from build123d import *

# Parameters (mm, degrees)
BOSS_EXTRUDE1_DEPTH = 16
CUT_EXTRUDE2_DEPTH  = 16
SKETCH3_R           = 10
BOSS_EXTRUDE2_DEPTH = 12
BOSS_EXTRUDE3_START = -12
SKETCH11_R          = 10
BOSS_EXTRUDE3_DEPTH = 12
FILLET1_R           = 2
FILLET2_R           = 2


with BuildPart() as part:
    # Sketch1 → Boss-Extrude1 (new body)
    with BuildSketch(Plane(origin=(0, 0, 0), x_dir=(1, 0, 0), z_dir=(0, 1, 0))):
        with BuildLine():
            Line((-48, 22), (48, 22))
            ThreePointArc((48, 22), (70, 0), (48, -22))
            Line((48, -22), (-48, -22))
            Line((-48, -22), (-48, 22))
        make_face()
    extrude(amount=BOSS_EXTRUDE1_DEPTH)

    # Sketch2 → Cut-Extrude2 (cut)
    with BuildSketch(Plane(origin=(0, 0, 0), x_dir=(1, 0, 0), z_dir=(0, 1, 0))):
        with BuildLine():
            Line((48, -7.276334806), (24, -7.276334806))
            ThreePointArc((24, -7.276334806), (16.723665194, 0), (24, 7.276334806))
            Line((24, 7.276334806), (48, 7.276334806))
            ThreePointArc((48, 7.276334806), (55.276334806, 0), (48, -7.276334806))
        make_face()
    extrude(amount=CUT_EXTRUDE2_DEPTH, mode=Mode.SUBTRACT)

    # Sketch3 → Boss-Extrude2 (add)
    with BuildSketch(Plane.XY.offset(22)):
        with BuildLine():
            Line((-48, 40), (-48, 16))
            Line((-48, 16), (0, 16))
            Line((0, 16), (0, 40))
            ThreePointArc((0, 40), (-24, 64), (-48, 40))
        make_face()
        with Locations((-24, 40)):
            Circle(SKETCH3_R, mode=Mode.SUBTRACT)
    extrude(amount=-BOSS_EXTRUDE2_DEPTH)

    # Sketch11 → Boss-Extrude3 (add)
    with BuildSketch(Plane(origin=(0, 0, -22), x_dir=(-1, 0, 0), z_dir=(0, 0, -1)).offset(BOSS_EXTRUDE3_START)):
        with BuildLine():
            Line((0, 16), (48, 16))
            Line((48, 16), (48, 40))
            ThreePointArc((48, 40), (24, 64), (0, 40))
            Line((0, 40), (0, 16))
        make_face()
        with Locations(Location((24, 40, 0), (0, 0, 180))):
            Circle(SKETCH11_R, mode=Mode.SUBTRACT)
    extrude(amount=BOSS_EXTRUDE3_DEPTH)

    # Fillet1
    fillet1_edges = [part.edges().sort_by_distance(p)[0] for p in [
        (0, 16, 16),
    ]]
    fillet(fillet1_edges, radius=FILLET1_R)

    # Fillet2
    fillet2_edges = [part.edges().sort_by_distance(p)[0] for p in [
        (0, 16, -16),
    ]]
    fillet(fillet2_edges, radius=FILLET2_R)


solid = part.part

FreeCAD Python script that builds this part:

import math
import FreeCAD as App
import Part
import Sketcher

V = App.Vector


def edges_at(feature, points):
    """Names of the edges that pass closest to the given points."""
    edges = feature.Shape.Edges
    near = lambda p: min(range(len(edges)), key=lambda i: edges[i].distToShape(Part.Vertex(*p))[0])
    return sorted({f"Edge{near(p) + 1}" for p in points})

doc = App.newDocument("Part")
params = doc.addObject("Spreadsheet::Sheet", "Params")
for row, (alias, value) in enumerate([
    ("sketch1_radius", "22 mm"),
    ("sketch1_width", "96 mm"),
    ("pad1_length", "16 mm"),
    ("sketch2_width", "24 mm"),
    ("pocket1_length", "16 mm"),
    ("sketch3_diameter", "20 mm"),
    ("sketch3_radius", "24 mm"),
    ("sketch3_height", "24 mm"),
    ("pad2_length", "12 mm"),
    ("sketch4_diameter", "20 mm"),
    ("sketch4_radius", "24 mm"),
    ("sketch4_height", "24 mm"),
    ("pad3_length", "12 mm"),
    ("fillet_radius", "2 mm"),
    ("fillet2_radius", "2 mm"),
], start=1):
    params.set(f"A{row}", alias)
    params.set(f"B{row}", "=" + value)
    params.setAlias(f"B{row}", alias)

body = doc.addObject("PartDesign::Body", "Body")

# Sketch on XZ plane
sketch1 = body.newObject("Sketcher::SketchObject", "Sketch")
sketch1.AttachmentSupport = (doc.getObject("XZ_Plane"), [""])
sketch1.MapMode = "FlatFace"
sketch1.addGeometry(Part.LineSegment(V(48, -22, 0), V(-48, -22, 0)), False)
sketch1.addGeometry(Part.LineSegment(V(-48, -22, 0), V(-48, 22, 0)), False)
sketch1.addGeometry(Part.LineSegment(V(-48, 22, 0), V(48, 22, 0)), False)
sketch1.addGeometry(Part.ArcOfCircle(Part.Circle(V(48, 0, 0), V(0, 0, 1), 22), math.radians(-90), math.radians(90)), False)
sketch1.addConstraint(Sketcher.Constraint("Coincident", 0, 2, 1, 1))
sketch1.addConstraint(Sketcher.Constraint("Coincident", 1, 2, 2, 1))
sketch1.addConstraint(Sketcher.Constraint("Tangent", 2, 2, 3, 2))
sketch1.addConstraint(Sketcher.Constraint("Tangent", 3, 1, 0, 1))
sketch1.addConstraint(Sketcher.Constraint("Horizontal", 0))
sketch1.addConstraint(Sketcher.Constraint("Vertical", 1))
sketch1.addConstraint(Sketcher.Constraint("Horizontal", 2))
sketch1.addConstraint(Sketcher.Constraint("Symmetric", 0, 2, 2, 2, -1, 1))
sketch1.addConstraint(Sketcher.Constraint("Radius", 3, 22.0))
sketch1.addConstraint(Sketcher.Constraint("DistanceX", 0, 2, 0, 1, 96.0))
sketch1.setExpression("Constraints[8]", "Params.sketch1_radius")
sketch1.setExpression("Constraints[9]", "Params.sketch1_width")
pad1 = body.newObject("PartDesign::Pad", "Pad")
pad1.Profile = sketch1
pad1.setExpression("Length", "Params.pad1_length")
pad1.Reversed = True

# Sketch on XZ plane
sketch2 = body.newObject("Sketcher::SketchObject", "Sketch001")
sketch2.AttachmentSupport = (doc.getObject("XZ_Plane"), [""])
sketch2.MapMode = "FlatFace"
sketch2.addGeometry(Part.LineSegment(V(24, 7.276335, 0), V(48, 7.276335, 0)), False)
sketch2.addGeometry(Part.ArcOfCircle(Part.Circle(V(48, 0, 0), V(0, 0, 1), 7.276335), math.radians(-90), math.radians(90)), False)
sketch2.addGeometry(Part.LineSegment(V(48, -7.276335, 0), V(24, -7.276335, 0)), False)
sketch2.addGeometry(Part.ArcOfCircle(Part.Circle(V(24, 0, 0), V(0, 0, 1), 7.276335), math.radians(90), math.radians(270)), False)
sketch2.addConstraint(Sketcher.Constraint("Tangent", 0, 2, 1, 2))
sketch2.addConstraint(Sketcher.Constraint("Tangent", 1, 1, 2, 1))
sketch2.addConstraint(Sketcher.Constraint("Tangent", 2, 2, 3, 2))
sketch2.addConstraint(Sketcher.Constraint("Tangent", 3, 1, 0, 1))
sketch2.addConstraint(Sketcher.Constraint("Horizontal", 0))
sketch2.addConstraint(Sketcher.Constraint("Horizontal", 2))
sketch2.addConstraint(Sketcher.Constraint("PointOnObject", 1, 3, -1))
sketch2.addConstraint(Sketcher.Constraint("DistanceX", 0, 1, 0, 2, 24.0))
sketch2.addConstraint(Sketcher.Constraint("DistanceX", -1, 1, 1, 3, 48.0))
sketch2.addConstraint(Sketcher.Constraint("Radius", 1, 7.276335))
sketch2.setExpression("Constraints[7]", "Params.sketch2_width")
pocket1 = body.newObject("PartDesign::Pocket", "Pocket")
pocket1.Profile = sketch2
pocket1.setExpression("Length", "Params.pocket1_length")

# Sketch on XY plane
sketch3 = body.newObject("Sketcher::SketchObject", "Sketch002")
sketch3.AttachmentSupport = (doc.getObject("XY_Plane"), [""])
sketch3.MapMode = "FlatFace"
sketch3.AttachmentOffset = App.Placement(V(0, 0, 22), App.Rotation())
sketch3.addGeometry(Part.LineSegment(V(-48, 40, 0), V(-48, 16, 0)), False)
sketch3.addGeometry(Part.LineSegment(V(-48, 16, 0), V(0, 16, 0)), False)
sketch3.addGeometry(Part.LineSegment(V(0, 16, 0), V(0, 40, 0)), False)
sketch3.addGeometry(Part.ArcOfCircle(Part.Circle(V(-24, 40, 0), V(0, 0, 1), 24), math.radians(0), math.radians(180)), False)
sketch3.addGeometry(Part.Circle(V(-24, 40, 0), V(0, 0, 1), 10), False)
sketch3.addConstraint(Sketcher.Constraint("Coincident", 0, 2, 1, 1))
sketch3.addConstraint(Sketcher.Constraint("Coincident", 1, 2, 2, 1))
sketch3.addConstraint(Sketcher.Constraint("Tangent", 2, 2, 3, 1))
sketch3.addConstraint(Sketcher.Constraint("Tangent", 3, 2, 0, 1))
sketch3.addConstraint(Sketcher.Constraint("Vertical", 0))
sketch3.addConstraint(Sketcher.Constraint("Horizontal", 1))
sketch3.addConstraint(Sketcher.Constraint("Vertical", 2))
sketch3.addConstraint(Sketcher.Constraint("Coincident", 4, 3, 3, 3))
sketch3.addConstraint(Sketcher.Constraint("PointOnObject", 1, 2, -2))
sketch3.addConstraint(Sketcher.Constraint("Diameter", 4, 20.0))
sketch3.addConstraint(Sketcher.Constraint("Radius", 3, 24.0))
sketch3.addConstraint(Sketcher.Constraint("DistanceY", 0, 2, 0, 1, 24.0))
sketch3.addConstraint(Sketcher.Constraint("DistanceY", -1, 1, 3, 3, 40.0))
sketch3.setExpression("Constraints[9]", "Params.sketch3_diameter")
sketch3.setExpression("Constraints[10]", "Params.sketch3_radius")
sketch3.setExpression("Constraints[11]", "Params.sketch3_height")
pad2 = body.newObject("PartDesign::Pad", "Pad001")
pad2.Profile = sketch3
pad2.setExpression("Length", "Params.pad2_length")
pad2.Reversed = True

# Sketch on XY plane
sketch4 = body.newObject("Sketcher::SketchObject", "Sketch003")
sketch4.AttachmentSupport = (doc.getObject("XY_Plane"), [""])
sketch4.MapMode = "FlatFace"
sketch4.AttachmentOffset = App.Placement(V(0, 0, -10), App.Rotation())
sketch4.addGeometry(Part.LineSegment(V(0, 16, 0), V(-48, 16, 0)), False)
sketch4.addGeometry(Part.LineSegment(V(-48, 16, 0), V(-48, 40, 0)), False)
sketch4.addGeometry(Part.ArcOfCircle(Part.Circle(V(-24, 40, 0), V(0, 0, 1), 24), math.radians(0), math.radians(180)), False)
sketch4.addGeometry(Part.LineSegment(V(0, 40, 0), V(0, 16, 0)), False)
sketch4.addGeometry(Part.Circle(V(-24, 40, 0), V(0, 0, 1), 10), False)
sketch4.addConstraint(Sketcher.Constraint("Coincident", 0, 2, 1, 1))
sketch4.addConstraint(Sketcher.Constraint("Tangent", 1, 2, 2, 2))
sketch4.addConstraint(Sketcher.Constraint("Tangent", 2, 1, 3, 1))
sketch4.addConstraint(Sketcher.Constraint("Coincident", 3, 2, 0, 1))
sketch4.addConstraint(Sketcher.Constraint("Horizontal", 0))
sketch4.addConstraint(Sketcher.Constraint("Vertical", 1))
sketch4.addConstraint(Sketcher.Constraint("Vertical", 3))
sketch4.addConstraint(Sketcher.Constraint("Coincident", 4, 3, 2, 3))
sketch4.addConstraint(Sketcher.Constraint("PointOnObject", 2, 1, -2))
sketch4.addConstraint(Sketcher.Constraint("Diameter", 4, 20.0))
sketch4.addConstraint(Sketcher.Constraint("Radius", 2, 24.0))
sketch4.addConstraint(Sketcher.Constraint("DistanceY", 1, 1, 1, 2, 24.0))
sketch4.addConstraint(Sketcher.Constraint("DistanceY", -1, 1, 2, 3, 40.0))
sketch4.setExpression("Constraints[9]", "Params.sketch4_diameter")
sketch4.setExpression("Constraints[10]", "Params.sketch4_radius")
sketch4.setExpression("Constraints[11]", "Params.sketch4_height")
pad3 = body.newObject("PartDesign::Pad", "Pad002")
pad3.Profile = sketch4
pad3.setExpression("Length", "Params.pad3_length")
pad3.Reversed = True
doc.recompute()

fillet = body.newObject("PartDesign::Fillet", "Fillet")
fillet.Base = (pad3, edges_at(pad3, [(0, 16, 16)]))
fillet.setExpression("Radius", "Params.fillet_radius")
doc.recompute()

fillet2 = body.newObject("PartDesign::Fillet", "Fillet001")
fillet2.Base = (fillet, edges_at(fillet, [(0, 16, -16)]))
fillet2.setExpression("Radius", "Params.fillet2_radius")

doc.recompute()
